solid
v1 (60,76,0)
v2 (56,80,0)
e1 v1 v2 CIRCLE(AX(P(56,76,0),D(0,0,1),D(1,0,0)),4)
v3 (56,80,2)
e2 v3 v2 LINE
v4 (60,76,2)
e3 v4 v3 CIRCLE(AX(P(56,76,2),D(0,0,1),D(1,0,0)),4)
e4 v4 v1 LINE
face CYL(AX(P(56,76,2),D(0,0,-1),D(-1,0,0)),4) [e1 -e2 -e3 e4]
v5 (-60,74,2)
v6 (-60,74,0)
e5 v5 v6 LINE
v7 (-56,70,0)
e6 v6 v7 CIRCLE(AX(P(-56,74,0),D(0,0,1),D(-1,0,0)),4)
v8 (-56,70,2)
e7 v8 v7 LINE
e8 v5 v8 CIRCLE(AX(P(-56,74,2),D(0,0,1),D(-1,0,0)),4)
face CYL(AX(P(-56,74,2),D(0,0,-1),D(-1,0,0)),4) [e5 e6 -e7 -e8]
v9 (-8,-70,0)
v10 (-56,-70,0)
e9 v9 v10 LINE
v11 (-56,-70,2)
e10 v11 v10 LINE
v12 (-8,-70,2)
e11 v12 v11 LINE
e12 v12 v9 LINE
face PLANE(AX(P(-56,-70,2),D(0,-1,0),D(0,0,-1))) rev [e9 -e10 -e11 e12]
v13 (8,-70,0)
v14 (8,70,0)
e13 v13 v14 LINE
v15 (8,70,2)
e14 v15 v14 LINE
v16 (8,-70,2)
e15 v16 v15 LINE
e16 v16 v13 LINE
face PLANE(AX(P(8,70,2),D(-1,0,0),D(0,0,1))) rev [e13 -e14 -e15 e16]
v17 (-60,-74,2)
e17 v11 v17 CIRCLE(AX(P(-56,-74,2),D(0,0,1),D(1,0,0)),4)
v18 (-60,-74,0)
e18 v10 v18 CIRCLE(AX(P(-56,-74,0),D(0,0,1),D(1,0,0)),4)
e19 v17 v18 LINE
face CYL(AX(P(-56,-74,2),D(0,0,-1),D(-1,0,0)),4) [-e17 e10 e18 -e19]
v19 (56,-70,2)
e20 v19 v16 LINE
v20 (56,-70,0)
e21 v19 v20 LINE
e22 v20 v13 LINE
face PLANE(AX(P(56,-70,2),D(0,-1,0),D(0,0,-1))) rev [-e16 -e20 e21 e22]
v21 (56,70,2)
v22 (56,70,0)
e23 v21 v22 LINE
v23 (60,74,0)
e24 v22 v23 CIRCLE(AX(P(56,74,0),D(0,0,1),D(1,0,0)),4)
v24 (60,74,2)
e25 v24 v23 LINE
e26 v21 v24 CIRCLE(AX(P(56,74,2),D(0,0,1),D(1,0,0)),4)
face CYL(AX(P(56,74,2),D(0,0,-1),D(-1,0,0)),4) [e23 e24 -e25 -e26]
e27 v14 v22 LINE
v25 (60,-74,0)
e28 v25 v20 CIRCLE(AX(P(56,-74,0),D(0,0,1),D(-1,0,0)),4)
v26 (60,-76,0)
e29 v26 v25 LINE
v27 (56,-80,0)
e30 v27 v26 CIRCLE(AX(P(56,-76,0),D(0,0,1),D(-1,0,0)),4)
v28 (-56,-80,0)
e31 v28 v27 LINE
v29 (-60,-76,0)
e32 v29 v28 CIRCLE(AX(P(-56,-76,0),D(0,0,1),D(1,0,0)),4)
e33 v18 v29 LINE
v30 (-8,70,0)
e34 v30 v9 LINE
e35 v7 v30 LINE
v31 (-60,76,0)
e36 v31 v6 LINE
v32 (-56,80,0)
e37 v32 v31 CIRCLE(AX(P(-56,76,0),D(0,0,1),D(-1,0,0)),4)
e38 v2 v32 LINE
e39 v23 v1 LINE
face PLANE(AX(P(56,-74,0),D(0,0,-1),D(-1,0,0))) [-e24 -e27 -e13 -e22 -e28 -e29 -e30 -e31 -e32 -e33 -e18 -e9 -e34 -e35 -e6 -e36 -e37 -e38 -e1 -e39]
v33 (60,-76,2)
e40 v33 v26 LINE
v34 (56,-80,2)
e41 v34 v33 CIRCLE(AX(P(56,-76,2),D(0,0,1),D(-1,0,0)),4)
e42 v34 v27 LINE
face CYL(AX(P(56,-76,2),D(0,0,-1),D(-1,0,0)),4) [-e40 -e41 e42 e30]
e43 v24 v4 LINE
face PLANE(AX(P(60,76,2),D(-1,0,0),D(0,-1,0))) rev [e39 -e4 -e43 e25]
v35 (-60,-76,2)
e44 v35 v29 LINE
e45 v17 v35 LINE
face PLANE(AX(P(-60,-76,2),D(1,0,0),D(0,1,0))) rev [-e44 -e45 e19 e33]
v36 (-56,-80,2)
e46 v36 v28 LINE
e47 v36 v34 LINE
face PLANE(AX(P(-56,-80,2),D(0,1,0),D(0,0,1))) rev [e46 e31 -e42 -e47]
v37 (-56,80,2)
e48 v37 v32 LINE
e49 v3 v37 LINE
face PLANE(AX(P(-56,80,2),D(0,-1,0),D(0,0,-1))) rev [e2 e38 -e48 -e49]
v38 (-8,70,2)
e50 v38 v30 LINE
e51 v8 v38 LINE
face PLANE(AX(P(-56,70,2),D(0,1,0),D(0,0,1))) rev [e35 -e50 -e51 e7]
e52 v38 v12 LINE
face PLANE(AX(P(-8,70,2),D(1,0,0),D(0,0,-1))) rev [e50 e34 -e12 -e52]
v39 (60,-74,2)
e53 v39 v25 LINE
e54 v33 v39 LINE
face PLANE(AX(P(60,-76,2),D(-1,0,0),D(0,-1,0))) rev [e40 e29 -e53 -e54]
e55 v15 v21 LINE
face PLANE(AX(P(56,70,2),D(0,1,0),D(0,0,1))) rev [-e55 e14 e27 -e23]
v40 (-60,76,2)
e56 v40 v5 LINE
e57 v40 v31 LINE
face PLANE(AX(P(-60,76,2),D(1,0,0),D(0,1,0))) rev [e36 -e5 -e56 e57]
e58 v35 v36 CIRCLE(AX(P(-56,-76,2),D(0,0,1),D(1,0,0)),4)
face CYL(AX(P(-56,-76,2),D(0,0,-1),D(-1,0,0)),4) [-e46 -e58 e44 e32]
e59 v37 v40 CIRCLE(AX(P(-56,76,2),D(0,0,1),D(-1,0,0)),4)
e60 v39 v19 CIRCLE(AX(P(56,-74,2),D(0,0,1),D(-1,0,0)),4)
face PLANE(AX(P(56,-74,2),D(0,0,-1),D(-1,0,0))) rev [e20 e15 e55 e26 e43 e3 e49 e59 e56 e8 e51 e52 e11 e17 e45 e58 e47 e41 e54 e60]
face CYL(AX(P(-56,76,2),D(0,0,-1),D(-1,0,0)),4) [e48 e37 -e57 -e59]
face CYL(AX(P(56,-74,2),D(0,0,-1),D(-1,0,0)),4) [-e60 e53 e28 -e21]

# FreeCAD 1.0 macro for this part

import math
import FreeCAD as App
import Part
import Sketcher

doc = App.newDocument("Part")
body = doc.addObject("PartDesign::Body", "Body")

sketch1 = body.newObject("Sketcher::SketchObject", "Sketch")
sketch1.AttachmentSupport = (doc.getObject("XY_Plane"), [""])
sketch1.MapMode = "FlatFace"
sketch1.addGeometry([
    Part.LineSegment(App.Vector(56, 80, 0), App.Vector(-56, 80, 0)),
    Part.ArcOfCircle(Part.Circle(App.Vector(-56, 76, 0), App.Vector(0, 0, 1), 4), math.radians(90), math.radians(180)),
    Part.LineSegment(App.Vector(-60, 76, 0), App.Vector(-60, 74, 0)),
    Part.ArcOfCircle(Part.Circle(App.Vector(-56, 74, 0), App.Vector(0, 0, 1), 4), math.radians(180), math.radians(270)),
    Part.LineSegment(App.Vector(-56, 70, 0), App.Vector(-8, 70, 0)),
    Part.LineSegment(App.Vector(-8, 70, 0), App.Vector(-8, -70, 0)),
    Part.LineSegment(App.Vector(-8, -70, 0), App.Vector(-56, -70, 0)),
    Part.ArcOfCircle(Part.Circle(App.Vector(-56, -74, 0), App.Vector(0, 0, 1), 4), math.radians(90), math.radians(180)),
    Part.LineSegment(App.Vector(-60, -74, 0), App.Vector(-60, -76, 0)),
    Part.ArcOfCircle(Part.Circle(App.Vector(-56, -76, 0), App.Vector(0, 0, 1), 4), math.radians(180), math.radians(270)),
    Part.LineSegment(App.Vector(-56, -80, 0), App.Vector(56, -80, 0)),
    Part.ArcOfCircle(Part.Circle(App.Vector(56, -76, 0), App.Vector(0, 0, 1), 4), math.radians(-90), math.radians(0)),
    Part.LineSegment(App.Vector(60, -76, 0), App.Vector(60, -74, 0)),
    Part.ArcOfCircle(Part.Circle(App.Vector(56, -74, 0), App.Vector(0, 0, 1), 4), math.radians(0), math.radians(90)),
    Part.LineSegment(App.Vector(56, -70, 0), App.Vector(8, -70, 0)),
    Part.LineSegment(App.Vector(8, -70, 0), App.Vector(8, 70, 0)),
    Part.LineSegment(App.Vector(8, 70, 0), App.Vector(56, 70, 0)),
    Part.ArcOfCircle(Part.Circle(App.Vector(56, 74, 0), App.Vector(0, 0, 1), 4), math.radians(-90), math.radians(0)),
    Part.LineSegment(App.Vector(60, 74, 0), App.Vector(60, 76, 0)),
    Part.ArcOfCircle(Part.Circle(App.Vector(56, 76, 0), App.Vector(0, 0, 1), 4), math.radians(0), math.radians(90)),
], False)
sketch1.addConstraint([
    Sketcher.Constraint("Tangent", 0, 2, 1, 1),
    Sketcher.Constraint("Tangent", 1, 2, 2, 1),
    Sketcher.Constraint("Tangent", 2, 2, 3, 1),
    Sketcher.Constraint("Tangent", 3, 2, 4, 1),
    Sketcher.Constraint("Coincident", 4, 2, 5, 1),
    Sketcher.Constraint("Coincident", 5, 2, 6, 1),
    Sketcher.Constraint("Tangent", 6, 2, 7, 1),
    Sketcher.Constraint("Tangent", 7, 2, 8, 1),
    Sketcher.Constraint("Tangent", 8, 2, 9, 1),
    Sketcher.Constraint("Tangent", 9, 2, 10, 1),
    Sketcher.Constraint("Tangent", 10, 2, 11, 1),
    Sketcher.Constraint("Tangent", 11, 2, 12, 1),
    Sketcher.Constraint("Tangent", 12, 2, 13, 1),
    Sketcher.Constraint("Tangent", 13, 2, 14, 1),
    Sketcher.Constraint("Coincident", 14, 2, 15, 1),
    Sketcher.Constraint("Coincident", 15, 2, 16, 1),
    Sketcher.Constraint("Tangent", 16, 2, 17, 1),
    Sketcher.Constraint("Tangent", 17, 2, 18, 1),
    Sketcher.Constraint("Tangent", 18, 2, 19, 1),
    Sketcher.Constraint("Tangent", 19, 2, 0, 1),
    Sketcher.Constraint("Horizontal", 0),
    Sketcher.Constraint("Vertical", 2),
    Sketcher.Constraint("Horizontal", 4),
    Sketcher.Constraint("Vertical", 5),
    Sketcher.Constraint("Horizontal", 6),
    Sketcher.Constraint("Vertical", 8),
    Sketcher.Constraint("Horizontal", 10),
    Sketcher.Constraint("Vertical", 12),
    Sketcher.Constraint("Horizontal", 14),
    Sketcher.Constraint("Vertical", 15),
    Sketcher.Constraint("Horizontal", 16),
    Sketcher.Constraint("Vertical", 18),
    Sketcher.Constraint("Equal", 1, 3),
    Sketcher.Constraint("Equal", 3, 7),
    Sketcher.Constraint("Equal", 7, 9),
    Sketcher.Constraint("Equal", 9, 11),
    Sketcher.Constraint("Equal", 11, 13),
    Sketcher.Constraint("Equal", 13, 17),
    Sketcher.Constraint("Equal", 17, 19),
    Sketcher.Constraint("Symmetric", 1, 3, 11, 3, -1, 1),
    Sketcher.Constraint("Symmetric", 7, 3, 17, 3, -1, 1),
    Sketcher.Constraint("Symmetric", 4, 2, 14, 2, -1, 1),
    Sketcher.Constraint("Symmetric", 7, 3, 13, 3, -2),
    Sketcher.Constraint("Radius", 1, 4.0),
    Sketcher.Constraint("DistanceX", 0, 2, 0, 1, 112.0),
    Sketcher.Constraint("DistanceX", 4, 1, 4, 2, 48.0),
    Sketcher.Constraint("DistanceY", 2, 2, 2, 1, 2.0),
    Sketcher.Constraint("DistanceY", 5, 2, 5, 1, 140.0),
])
pad1 = body.newObject("PartDesign::Pad", "Pad")
pad1.Profile = sketch1
pad1.Length = 2

doc.recompute()
